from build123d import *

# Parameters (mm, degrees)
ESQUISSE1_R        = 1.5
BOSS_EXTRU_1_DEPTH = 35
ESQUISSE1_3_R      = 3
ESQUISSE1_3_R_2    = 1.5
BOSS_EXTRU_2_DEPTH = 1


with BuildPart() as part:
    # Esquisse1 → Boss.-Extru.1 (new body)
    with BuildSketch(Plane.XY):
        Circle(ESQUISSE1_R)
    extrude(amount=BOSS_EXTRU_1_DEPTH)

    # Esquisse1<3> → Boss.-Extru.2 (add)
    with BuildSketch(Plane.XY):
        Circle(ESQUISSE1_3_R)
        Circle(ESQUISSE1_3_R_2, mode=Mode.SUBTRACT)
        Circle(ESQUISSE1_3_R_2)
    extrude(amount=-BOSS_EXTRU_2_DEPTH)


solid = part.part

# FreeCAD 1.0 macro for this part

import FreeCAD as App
import Part
import Sketcher

doc = App.newDocument("Part")
params = doc.addObject("Spreadsheet::Sheet", "Params")
for row, (alias, value) in enumerate([
    ("sketch1_diameter", "3 mm"),
    ("pad1_length", "35 mm"),
    ("sketch2_diameter", "6 mm"),
    ("pad2_length", "1 mm"),
], start=1):
    params.set(f"A{row}", alias)
    params.set(f"B{row}", "=" + value)
    params.setAlias(f"B{row}", alias)

body = doc.addObject("PartDesign::Body", "Body")

# Sketch on XY plane
sketch1 = body.newObject("Sketcher::SketchObject", "Sketch")
sketch1.AttachmentSupport = (doc.getObject("XY_Plane"), [""])
sketch1.MapMode = "FlatFace"
sketch1.addGeometry(Part.Circle(App.Vector(0, 0, 0), App.Vector(0, 0, 1), 1.5), False)
sketch1.addConstraint([
    Sketcher.Constraint("Coincident", 0, 3, -1, 1),
    Sketcher.Constraint("Diameter", 0, 3.0),
])
sketch1.setExpression("Constraints[1]", "Params.sketch1_diameter")
pad1 = body.newObject("PartDesign::Pad", "Pad")
pad1.Profile = sketch1
pad1.setExpression("Length", "Params.pad1_length")

# Sketch on XY plane
sketch2 = body.newObject("Sketcher::SketchObject", "Sketch001")
sketch2.AttachmentSupport = (doc.getObject("XY_Plane"), [""])
sketch2.MapMode = "FlatFace"
sketch2.addGeometry(Part.Circle(App.Vector(0, 0, 0), App.Vector(0, 0, 1), 3), False)
sketch2.addConstraint([
    Sketcher.Constraint("Coincident", 0, 3, -1, 1),
    Sketcher.Constraint("Diameter", 0, 6.0),
])
sketch2.setExpression("Constraints[1]", "Params.sketch2_diameter")
pad2 = body.newObject("PartDesign::Pad", "Pad001")
pad2.Profile = sketch2
pad2.setExpression("Length", "Params.pad2_length")
pad2.Reversed = True

doc.recompute()
